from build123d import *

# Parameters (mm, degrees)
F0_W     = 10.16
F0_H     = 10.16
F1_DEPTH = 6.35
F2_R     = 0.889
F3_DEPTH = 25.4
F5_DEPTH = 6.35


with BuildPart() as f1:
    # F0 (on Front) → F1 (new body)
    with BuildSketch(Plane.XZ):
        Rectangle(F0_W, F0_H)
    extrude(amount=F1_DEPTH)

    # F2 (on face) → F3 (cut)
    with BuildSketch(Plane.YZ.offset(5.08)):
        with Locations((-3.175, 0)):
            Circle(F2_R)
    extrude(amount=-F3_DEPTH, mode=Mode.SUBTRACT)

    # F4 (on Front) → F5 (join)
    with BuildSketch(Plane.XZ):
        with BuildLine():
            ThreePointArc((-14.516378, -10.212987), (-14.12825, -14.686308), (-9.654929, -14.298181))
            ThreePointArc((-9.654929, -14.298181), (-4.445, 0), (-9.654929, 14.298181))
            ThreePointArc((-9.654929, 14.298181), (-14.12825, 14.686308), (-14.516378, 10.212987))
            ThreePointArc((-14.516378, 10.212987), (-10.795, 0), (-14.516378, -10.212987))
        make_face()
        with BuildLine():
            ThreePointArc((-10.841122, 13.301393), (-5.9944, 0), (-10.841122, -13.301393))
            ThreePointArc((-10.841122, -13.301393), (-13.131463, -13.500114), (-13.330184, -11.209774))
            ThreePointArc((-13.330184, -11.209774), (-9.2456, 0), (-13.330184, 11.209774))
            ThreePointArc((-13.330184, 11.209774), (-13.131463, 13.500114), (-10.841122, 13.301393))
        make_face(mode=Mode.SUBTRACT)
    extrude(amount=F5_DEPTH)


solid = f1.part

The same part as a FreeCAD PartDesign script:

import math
import FreeCAD as App
import Part
import Sketcher
from FreeCAD import Vector
Q = App.Units.Quantity


def add_polygon(sketch, points):
    """Adds a closed chain of lines whose ends are joined by coincident constraints."""
    first, n = sketch.GeometryCount, len(points)
    for a, b in zip(points, points[1:] + points[:1]):
        sketch.addGeometry(Part.LineSegment(App.Vector(*a, 0), App.Vector(*b, 0)), False)
    for i in range(n):
        sketch.addConstraint(Sketcher.Constraint("Coincident", first + i, 2, first + (i + 1) % n, 1))

doc = App.newDocument("Part")
body = doc.addObject("PartDesign::Body", "Body")

# Sketch on XZ plane
sketch1 = doc.addObject("Sketcher::SketchObject", "Sketch")
body.addObject(sketch1)
sketch1.AttachmentSupport = (doc.XZ_Plane, [""])
sketch1.MapMode = "FlatFace"
add_polygon(sketch1, [(-5.08, 5.08), (-5.08, -5.08), (5.08, -5.08), (5.08, 5.08)])  # lines 0-3
sketch1.addConstraint([
    Sketcher.Constraint("Vertical", 0),
    Sketcher.Constraint("Horizontal", 1),
    Sketcher.Constraint("Vertical", 2),
    Sketcher.Constraint("Horizontal", 3),
    Sketcher.Constraint("Symmetric", 0, 2, 2, 2, -1, 1),
    Sketcher.Constraint("Equal", 3, 0),
    Sketcher.Constraint("DistanceX", 1, 1, 1, 2, Q("0.4 in")),
])
pad1 = doc.addObject("PartDesign::Pad", "Pad")
body.addObject(pad1)
pad1.Profile = sketch1
pad1.Length = Q("0.25 in")

# Sketch on YZ plane
sketch2 = doc.addObject("Sketcher::SketchObject", "Sketch001")
body.addObject(sketch2)
sketch2.AttachmentSupport = (doc.YZ_Plane, [""])
sketch2.MapMode = "FlatFace"
sketch2.AttachmentOffset = App.Placement(Vector(0, 0, 0.2 * 25.4), App.Rotation())
sketch2.addGeometry(Part.Circle(Vector(-3.175, 0, 0), Vector(0, 0, 1), 0.889), False)
sketch2.addConstraint([
    Sketcher.Constraint("PointOnObject", 0, 3, -1),
    Sketcher.Constraint("Diameter", 0, Q("0.07 in")),
    Sketcher.Constraint("DistanceX", 0, 3, -1, 1, Q("0.125 in")),
])
pocket1 = doc.addObject("PartDesign::Pocket", "Pocket")
body.addObject(pocket1)
pocket1.Profile = sketch2
pocket1.Length = Q("1 in")

# Sketch on XZ plane
sketch3 = doc.addObject("Sketcher::SketchObject", "Sketch002")
body.addObject(sketch3)
sketch3.AttachmentSupport = (doc.XZ_Plane, [""])
sketch3.MapMode = "FlatFace"
sketch3.addGeometry([
    Part.ArcOfCircle(Part.Circle(Vector(-12.085653, -12.255583, 0), Vector(0, 0, 1), 3.175), math.radians(139.958859), math.radians(319.958834)),  # 0
    Part.ArcOfCircle(Part.Circle(Vector(-26.67, 0, 0), Vector(0, 0, 1), 22.225), math.radians(-40.041159), math.radians(40.041159)),  # 1
    Part.ArcOfCircle(Part.Circle(Vector(-12.085653, 12.255583, 0), Vector(0, 0, 1), 3.175), math.radians(40.041166), math.radians(220.041141)),  # 2
    Part.ArcOfCircle(Part.Circle(Vector(-26.670001, 0, 0), Vector(0, 0, 1), 15.875001), math.radians(-40.041158), math.radians(40.041158)),  # 3
    Part.ArcOfCircle(Part.Circle(Vector(-12.085653, 12.255583, 0), Vector(0, 0, 1), 1.6256), math.radians(40.04115), math.radians(220.041146)),  # 4
    Part.ArcOfCircle(Part.Circle(Vector(-26.67, 0, 0), Vector(0, 0, 1), 20.6756), math.radians(-40.041156), math.radians(40.041156)),  # 5
    Part.ArcOfCircle(Part.Circle(Vector(-12.085653, -12.255583, 0), Vector(0, 0, 1), 1.6256), math.radians(139.958854), math.radians(319.95885)),  # 6
    Part.ArcOfCircle(Part.Circle(Vector(-26.670001, 0, 0), Vector(0, 0, 1), 17.424401), math.radians(-40.041156), math.radians(40.041156)),  # 7
], False)
sketch3.addConstraint([
    Sketcher.Constraint("Tangent", 0, 2, 1, 1),
    Sketcher.Constraint("Tangent", 1, 2, 2, 1),
    Sketcher.Constraint("Tangent", 2, 2, 3, 2),
    Sketcher.Constraint("Tangent", 3, 1, 0, 1),
    Sketcher.Constraint("Tangent", 4, 1, 5, 2),
    Sketcher.Constraint("Tangent", 5, 1, 6, 2),
    Sketcher.Constraint("Tangent", 6, 1, 7, 1),
    Sketcher.Constraint("Tangent", 7, 2, 4, 2),
    Sketcher.Constraint("Coincident", 3, 3, 1, 3),
    Sketcher.Constraint("Coincident", 4, 3, 2, 3),
    Sketcher.Constraint("Coincident", 5, 3, 1, 3),
    Sketcher.Constraint("Coincident", 6, 3, 0, 3),
    Sketcher.Constraint("Symmetric", 0, 3, 2, 3, -1),
    Sketcher.Constraint("Radius", 0, Q("0.125 in")),
    Sketcher.Constraint("Radius", 1, Q("0.875 in")),
    Sketcher.Constraint("Radius", 4, Q("0.064 in")),
    Sketcher.Constraint("Radius", 7, Q("0.686 in")),
    Sketcher.Constraint("DistanceX", 1, 3, -1, 1, Q("1.05 in")),
    Sketcher.Constraint("DistanceX", 0, 2, -1, 1, 9.654929),
])
pad2 = doc.addObject("PartDesign::Pad", "Pad001")
body.addObject(pad2)
pad2.Profile = sketch3
pad2.Length = Q("0.25 in")

doc.recompute()
